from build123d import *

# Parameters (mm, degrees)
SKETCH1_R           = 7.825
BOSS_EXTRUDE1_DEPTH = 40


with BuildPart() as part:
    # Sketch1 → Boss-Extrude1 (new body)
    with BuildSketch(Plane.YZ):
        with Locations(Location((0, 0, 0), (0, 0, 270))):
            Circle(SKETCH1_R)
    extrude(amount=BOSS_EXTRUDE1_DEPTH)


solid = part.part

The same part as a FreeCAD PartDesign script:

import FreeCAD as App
import Part
import Sketcher
from FreeCAD import Vector

doc = App.newDocument("Part")
params = doc.addObject("Spreadsheet::Sheet", "Params")
for row, (alias, value) in enumerate([
    ("sketch1_diameter", "15.65 mm"),
    ("pad1_length", "40 mm"),
], start=1):
    params.set(f"A{row}", alias)
    params.set(f"B{row}", "=" + value)
    params.setAlias(f"B{row}", alias)

body = doc.addObject("PartDesign::Body", "Body")

# Sketch on YZ plane
sketch1 = body.newObject("Sketcher::SketchObject", "Sketch")
sketch1.AttachmentSupport = (doc.getObject("YZ_Plane"), [""])
sketch1.MapMode = "FlatFace"
sketch1.addGeometry(Part.Circle(Vector(0, 0, 0), Vector(0, 0, 1), 8), False)
sketch1.addConstraint([
    Sketcher.Constraint("Coincident", 0, 3, -1, 1),
    Sketcher.Constraint("Diameter", 0, 15.65),
])
sketch1.setExpression("Constraints[1]", "Params.sketch1_diameter")
pad1 = body.newObject("PartDesign::Pad", "Pad")
pad1.Profile = sketch1
pad1.setExpression("Length", "Params.pad1_length")

doc.recompute()
